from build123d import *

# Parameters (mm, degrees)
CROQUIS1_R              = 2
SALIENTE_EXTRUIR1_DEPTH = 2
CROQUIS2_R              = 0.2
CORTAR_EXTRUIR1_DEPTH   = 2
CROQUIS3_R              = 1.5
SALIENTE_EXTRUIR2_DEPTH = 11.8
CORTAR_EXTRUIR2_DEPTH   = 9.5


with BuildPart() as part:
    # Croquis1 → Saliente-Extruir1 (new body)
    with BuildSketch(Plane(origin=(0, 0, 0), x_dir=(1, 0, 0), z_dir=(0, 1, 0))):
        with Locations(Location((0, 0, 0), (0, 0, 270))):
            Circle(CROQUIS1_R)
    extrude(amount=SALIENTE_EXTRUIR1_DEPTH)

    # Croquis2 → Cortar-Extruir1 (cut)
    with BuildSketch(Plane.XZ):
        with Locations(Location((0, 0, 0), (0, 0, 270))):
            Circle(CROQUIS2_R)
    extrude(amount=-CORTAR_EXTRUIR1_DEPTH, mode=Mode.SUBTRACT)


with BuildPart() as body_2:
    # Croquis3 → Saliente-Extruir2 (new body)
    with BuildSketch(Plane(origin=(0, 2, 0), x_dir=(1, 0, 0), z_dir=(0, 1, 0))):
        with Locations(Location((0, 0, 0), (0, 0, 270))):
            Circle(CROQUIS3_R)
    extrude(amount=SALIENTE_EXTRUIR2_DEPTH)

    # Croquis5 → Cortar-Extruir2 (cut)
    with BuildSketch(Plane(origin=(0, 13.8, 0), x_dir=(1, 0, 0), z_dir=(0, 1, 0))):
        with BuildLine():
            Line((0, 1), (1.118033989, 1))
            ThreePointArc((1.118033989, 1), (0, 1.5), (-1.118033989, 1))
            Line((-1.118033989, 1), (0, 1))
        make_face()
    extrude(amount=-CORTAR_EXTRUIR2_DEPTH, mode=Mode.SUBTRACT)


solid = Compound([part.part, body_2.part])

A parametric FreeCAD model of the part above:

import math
import FreeCAD as App
import Part
import Sketcher

doc = App.newDocument("Part")
body = doc.addObject("PartDesign::Body", "Body")

# Sketch on XZ plane
sketch1 = body.newObject("Sketcher::SketchObject", "Sketch")
sketch1.AttachmentSupport = (doc.getObject("XZ_Plane"), [""])
sketch1.MapMode = "FlatFace"
sketch1.addGeometry(Part.Circle(App.Vector(0, 0, 0), App.Vector(0, 0, 1), 2), False)
sketch1.addConstraint(Sketcher.Constraint("Coincident", 0, 3, -1, 1))
sketch1.addConstraint(Sketcher.Constraint("Diameter", 0, 4.0))
pad1 = body.newObject("PartDesign::Pad", "Pad")
pad1.Profile = sketch1
pad1.Length = 2
pad1.Reversed = True

# Sketch on XZ plane
sketch2 = body.newObject("Sketcher::SketchObject", "Sketch001")
sketch2.AttachmentSupport = (doc.getObject("XZ_Plane"), [""])
sketch2.MapMode = "FlatFace"
sketch2.addGeometry(Part.Circle(App.Vector(0, 0, 0), App.Vector(0, 0, 1), 0.2), False)
sketch2.addConstraint(Sketcher.Constraint("Coincident", 0, 3, -1, 1))
sketch2.addConstraint(Sketcher.Constraint("Diameter", 0, 0.4))
pocket1 = body.newObject("PartDesign::Pocket", "Pocket")
pocket1.Profile = sketch2
pocket1.Length = 2
body2 = doc.addObject("PartDesign::Body", "Body001")

# Sketch on XZ plane
sketch3 = body2.newObject("Sketcher::SketchObject", "Sketch002")
sketch3.AttachmentSupport = (doc.getObject("XZ_Plane001"), [""])
sketch3.MapMode = "FlatFace"
sketch3.AttachmentOffset = App.Placement(App.Vector(0, 0, -2), App.Rotation())
sketch3.addGeometry(Part.Circle(App.Vector(0, 0, 0), App.Vector(0, 0, 1), 1.5), False)
sketch3.addConstraint(Sketcher.Constraint("Coincident", 0, 3, -1, 1))
sketch3.addConstraint(Sketcher.Constraint("Diameter", 0, 3.0))
pad2 = body2.newObject("PartDesign::Pad", "Pad001")
pad2.Profile = sketch3
pad2.Length = 11.8
pad2.Reversed = True

# Sketch on XZ plane
sketch4 = body2.newObject("Sketcher::SketchObject", "Sketch003")
sketch4.AttachmentSupport = (doc.getObject("XZ_Plane001"), [""])
sketch4.MapMode = "FlatFace"
sketch4.AttachmentOffset = App.Placement(App.Vector(0, 0, -13.8), App.Rotation())
sketch4.addGeometry(Part.ArcOfCircle(Part.Circle(App.Vector(0, 0, 0), App.Vector(0, 0, 1), 1.5), math.radians(-138), math.radians(-42)), False)
sketch4.addGeometry(Part.LineSegment(App.Vector(-1.1, -1, 0), App.Vector(1.1, -1, 0)), False)
sketch4.addConstraint(Sketcher.Constraint("Coincident", 0, 1, 1, 1))
sketch4.addConstraint(Sketcher.Constraint("Coincident", 1, 2, 0, 2))
sketch4.addConstraint(Sketcher.Constraint("Horizontal", 1))
sketch4.addConstraint(Sketcher.Constraint("Coincident", 0, 3, -1, 1))
sketch4.addConstraint(Sketcher.Constraint("Radius", 0, 1.5))
sketch4.addConstraint(Sketcher.Constraint("DistanceY", 0, 1, -1, 1, 1.0))
pocket2 = body2.newObject("PartDesign::Pocket", "Pocket001")
pocket2.Profile = sketch4
pocket2.Length = 9.5
pocket2.Reversed = True

doc.recompute()
